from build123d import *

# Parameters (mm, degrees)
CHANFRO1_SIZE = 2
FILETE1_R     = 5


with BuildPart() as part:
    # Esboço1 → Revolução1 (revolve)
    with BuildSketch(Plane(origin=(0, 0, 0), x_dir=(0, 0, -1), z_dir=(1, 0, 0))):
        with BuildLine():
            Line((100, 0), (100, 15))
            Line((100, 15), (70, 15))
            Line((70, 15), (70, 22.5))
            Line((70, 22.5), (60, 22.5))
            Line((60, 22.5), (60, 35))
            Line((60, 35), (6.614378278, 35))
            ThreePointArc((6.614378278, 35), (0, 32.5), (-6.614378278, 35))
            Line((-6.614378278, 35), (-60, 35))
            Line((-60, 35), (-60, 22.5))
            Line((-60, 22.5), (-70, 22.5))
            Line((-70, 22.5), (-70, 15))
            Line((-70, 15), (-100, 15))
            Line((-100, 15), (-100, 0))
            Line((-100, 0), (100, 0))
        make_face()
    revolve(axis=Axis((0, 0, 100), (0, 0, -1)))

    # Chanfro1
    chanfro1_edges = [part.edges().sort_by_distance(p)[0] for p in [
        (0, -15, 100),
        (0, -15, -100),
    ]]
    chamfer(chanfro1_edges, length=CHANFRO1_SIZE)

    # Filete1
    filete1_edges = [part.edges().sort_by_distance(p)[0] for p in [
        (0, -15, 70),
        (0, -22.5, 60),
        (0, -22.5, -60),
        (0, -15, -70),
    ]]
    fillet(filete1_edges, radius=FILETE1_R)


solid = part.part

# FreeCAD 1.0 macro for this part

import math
import FreeCAD as App
import Part
import Sketcher
Q = App.Units.Quantity


def edges_at(feature, points):
    """Names of the edges that pass closest to the given points."""
    edges = feature.Shape.Edges
    near = lambda p: min(range(len(edges)), key=lambda i: edges[i].distToShape(Part.Vertex(*p))[0])
    return sorted({f"Edge{near(p) + 1}" for p in points})

doc = App.newDocument("Part")
body = doc.addObject("PartDesign::Body", "Body")

# Sketch on YZ plane
sketch1 = body.newObject("Sketcher::SketchObject", "Sketch")
sketch1.AttachmentSupport = (doc.getObject("YZ_Plane"), [""])
sketch1.MapMode = "FlatFace"
sketch1.addGeometry([
    Part.LineSegment(App.Vector(0, -100, 0), App.Vector(15, -100, 0)),  # 0
    Part.LineSegment(App.Vector(15, -100, 0), App.Vector(15, -70, 0)),  # 1
    Part.LineSegment(App.Vector(15, -70, 0), App.Vector(22, -70, 0)),  # 2
    Part.LineSegment(App.Vector(22, -70, 0), App.Vector(22, -60, 0)),  # 3
    Part.LineSegment(App.Vector(22, -60, 0), App.Vector(35, -60, 0)),  # 4
    Part.LineSegment(App.Vector(35, -60, 0), App.Vector(35, -7, 0)),  # 5
    Part.ArcOfCircle(Part.Circle(App.Vector(43, 0, 0), App.Vector(0, 0, 1), 10), math.radians(139), math.radians(221)),  # 6
    Part.LineSegment(App.Vector(35, 7, 0), App.Vector(35, 60, 0)),  # 7
    Part.LineSegment(App.Vector(35, 60, 0), App.Vector(22, 60, 0)),  # 8
    Part.LineSegment(App.Vector(22, 60, 0), App.Vector(22, 70, 0)),  # 9
    Part.LineSegment(App.Vector(22, 70, 0), App.Vector(15, 70, 0)),  # 10
    Part.LineSegment(App.Vector(15, 70, 0), App.Vector(15, 100, 0)),  # 11
    Part.LineSegment(App.Vector(15, 100, 0), App.Vector(0, 100, 0)),  # 12
    Part.LineSegment(App.Vector(0, 100, 0), App.Vector(0, -100, 0)),  # 13
], False)
sketch1.addConstraint([
    Sketcher.Constraint("Coincident", 0, 2, 1, 1),
    Sketcher.Constraint("Coincident", 1, 2, 2, 1),
    Sketcher.Constraint("Coincident", 2, 2, 3, 1),
    Sketcher.Constraint("Coincident", 3, 2, 4, 1),
    Sketcher.Constraint("Coincident", 4, 2, 5, 1),
    Sketcher.Constraint("Coincident", 5, 2, 6, 2),
    Sketcher.Constraint("Coincident", 6, 1, 7, 1),
    Sketcher.Constraint("Coincident", 7, 2, 8, 1),
    Sketcher.Constraint("Coincident", 8, 2, 9, 1),
    Sketcher.Constraint("Coincident", 9, 2, 10, 1),
    Sketcher.Constraint("Coincident", 10, 2, 11, 1),
    Sketcher.Constraint("Coincident", 11, 2, 12, 1),
    Sketcher.Constraint("Coincident", 12, 2, 13, 1),
    Sketcher.Constraint("Coincident", 13, 2, 0, 1),
    Sketcher.Constraint("Horizontal", 0),
    Sketcher.Constraint("Vertical", 1),
    Sketcher.Constraint("Horizontal", 2),
    Sketcher.Constraint("Vertical", 3),
    Sketcher.Constraint("Horizontal", 4),
    Sketcher.Constraint("Vertical", 5),
    Sketcher.Constraint("Vertical", 7),
    Sketcher.Constraint("Horizontal", 8),
    Sketcher.Constraint("Vertical", 9),
    Sketcher.Constraint("Horizontal", 10),
    Sketcher.Constraint("Vertical", 11),
    Sketcher.Constraint("Horizontal", 12),
    Sketcher.Constraint("Vertical", 13),
    Sketcher.Constraint("Symmetric", 12, 2, 13, 2, -1, 1),
    Sketcher.Constraint("Symmetric", 5, 2, 6, 1, -1),
    Sketcher.Constraint("Symmetric", 3, 2, 8, 2, -1),
    Sketcher.Constraint("Symmetric", 1, 2, 10, 2, -1),
    Sketcher.Constraint("Radius", 6, Q("10 mm")),
    Sketcher.Constraint("DistanceX", 0, 1, 0, 2, Q("15 mm")),
    Sketcher.Constraint("DistanceY", 1, 1, 1, 2, Q("30 mm")),
    Sketcher.Constraint("DistanceY", 3, 1, 3, 2, Q("10 mm")),
    Sketcher.Constraint("DistanceY", 13, 2, 13, 1, Q("200 mm")),
    Sketcher.Constraint("DistanceX", 2, 1, 2, 2, Q("7.5 mm")),
    Sketcher.Constraint("DistanceX", 4, 1, 4, 2, Q("12.5 mm")),
    Sketcher.Constraint("DistanceX", 2, 2, 6, 3, Q("20 mm")),
])
revolution = body.newObject("PartDesign::Revolution", "Revolution")
revolution.Profile = sketch1
revolution.ReferenceAxis = (sketch1, ["V_Axis"])
revolution.Angle = 360
doc.recompute()

chamfer = body.newObject("PartDesign::Chamfer", "Chamfer")
chamfer.Base = (revolution, edges_at(revolution, [(0, -15, 100), (0, -15, -100)]))
chamfer.Size = 2
doc.recompute()

fillet = body.newObject("PartDesign::Fillet", "Fillet")
fillet.Base = (chamfer, edges_at(chamfer, [
    (0, -15, 70),
    (0, -22.5, 60),
    (0, -22.5, -60),
    (0, -15, -70),
]))
fillet.Radius = 5

doc.recompute()
